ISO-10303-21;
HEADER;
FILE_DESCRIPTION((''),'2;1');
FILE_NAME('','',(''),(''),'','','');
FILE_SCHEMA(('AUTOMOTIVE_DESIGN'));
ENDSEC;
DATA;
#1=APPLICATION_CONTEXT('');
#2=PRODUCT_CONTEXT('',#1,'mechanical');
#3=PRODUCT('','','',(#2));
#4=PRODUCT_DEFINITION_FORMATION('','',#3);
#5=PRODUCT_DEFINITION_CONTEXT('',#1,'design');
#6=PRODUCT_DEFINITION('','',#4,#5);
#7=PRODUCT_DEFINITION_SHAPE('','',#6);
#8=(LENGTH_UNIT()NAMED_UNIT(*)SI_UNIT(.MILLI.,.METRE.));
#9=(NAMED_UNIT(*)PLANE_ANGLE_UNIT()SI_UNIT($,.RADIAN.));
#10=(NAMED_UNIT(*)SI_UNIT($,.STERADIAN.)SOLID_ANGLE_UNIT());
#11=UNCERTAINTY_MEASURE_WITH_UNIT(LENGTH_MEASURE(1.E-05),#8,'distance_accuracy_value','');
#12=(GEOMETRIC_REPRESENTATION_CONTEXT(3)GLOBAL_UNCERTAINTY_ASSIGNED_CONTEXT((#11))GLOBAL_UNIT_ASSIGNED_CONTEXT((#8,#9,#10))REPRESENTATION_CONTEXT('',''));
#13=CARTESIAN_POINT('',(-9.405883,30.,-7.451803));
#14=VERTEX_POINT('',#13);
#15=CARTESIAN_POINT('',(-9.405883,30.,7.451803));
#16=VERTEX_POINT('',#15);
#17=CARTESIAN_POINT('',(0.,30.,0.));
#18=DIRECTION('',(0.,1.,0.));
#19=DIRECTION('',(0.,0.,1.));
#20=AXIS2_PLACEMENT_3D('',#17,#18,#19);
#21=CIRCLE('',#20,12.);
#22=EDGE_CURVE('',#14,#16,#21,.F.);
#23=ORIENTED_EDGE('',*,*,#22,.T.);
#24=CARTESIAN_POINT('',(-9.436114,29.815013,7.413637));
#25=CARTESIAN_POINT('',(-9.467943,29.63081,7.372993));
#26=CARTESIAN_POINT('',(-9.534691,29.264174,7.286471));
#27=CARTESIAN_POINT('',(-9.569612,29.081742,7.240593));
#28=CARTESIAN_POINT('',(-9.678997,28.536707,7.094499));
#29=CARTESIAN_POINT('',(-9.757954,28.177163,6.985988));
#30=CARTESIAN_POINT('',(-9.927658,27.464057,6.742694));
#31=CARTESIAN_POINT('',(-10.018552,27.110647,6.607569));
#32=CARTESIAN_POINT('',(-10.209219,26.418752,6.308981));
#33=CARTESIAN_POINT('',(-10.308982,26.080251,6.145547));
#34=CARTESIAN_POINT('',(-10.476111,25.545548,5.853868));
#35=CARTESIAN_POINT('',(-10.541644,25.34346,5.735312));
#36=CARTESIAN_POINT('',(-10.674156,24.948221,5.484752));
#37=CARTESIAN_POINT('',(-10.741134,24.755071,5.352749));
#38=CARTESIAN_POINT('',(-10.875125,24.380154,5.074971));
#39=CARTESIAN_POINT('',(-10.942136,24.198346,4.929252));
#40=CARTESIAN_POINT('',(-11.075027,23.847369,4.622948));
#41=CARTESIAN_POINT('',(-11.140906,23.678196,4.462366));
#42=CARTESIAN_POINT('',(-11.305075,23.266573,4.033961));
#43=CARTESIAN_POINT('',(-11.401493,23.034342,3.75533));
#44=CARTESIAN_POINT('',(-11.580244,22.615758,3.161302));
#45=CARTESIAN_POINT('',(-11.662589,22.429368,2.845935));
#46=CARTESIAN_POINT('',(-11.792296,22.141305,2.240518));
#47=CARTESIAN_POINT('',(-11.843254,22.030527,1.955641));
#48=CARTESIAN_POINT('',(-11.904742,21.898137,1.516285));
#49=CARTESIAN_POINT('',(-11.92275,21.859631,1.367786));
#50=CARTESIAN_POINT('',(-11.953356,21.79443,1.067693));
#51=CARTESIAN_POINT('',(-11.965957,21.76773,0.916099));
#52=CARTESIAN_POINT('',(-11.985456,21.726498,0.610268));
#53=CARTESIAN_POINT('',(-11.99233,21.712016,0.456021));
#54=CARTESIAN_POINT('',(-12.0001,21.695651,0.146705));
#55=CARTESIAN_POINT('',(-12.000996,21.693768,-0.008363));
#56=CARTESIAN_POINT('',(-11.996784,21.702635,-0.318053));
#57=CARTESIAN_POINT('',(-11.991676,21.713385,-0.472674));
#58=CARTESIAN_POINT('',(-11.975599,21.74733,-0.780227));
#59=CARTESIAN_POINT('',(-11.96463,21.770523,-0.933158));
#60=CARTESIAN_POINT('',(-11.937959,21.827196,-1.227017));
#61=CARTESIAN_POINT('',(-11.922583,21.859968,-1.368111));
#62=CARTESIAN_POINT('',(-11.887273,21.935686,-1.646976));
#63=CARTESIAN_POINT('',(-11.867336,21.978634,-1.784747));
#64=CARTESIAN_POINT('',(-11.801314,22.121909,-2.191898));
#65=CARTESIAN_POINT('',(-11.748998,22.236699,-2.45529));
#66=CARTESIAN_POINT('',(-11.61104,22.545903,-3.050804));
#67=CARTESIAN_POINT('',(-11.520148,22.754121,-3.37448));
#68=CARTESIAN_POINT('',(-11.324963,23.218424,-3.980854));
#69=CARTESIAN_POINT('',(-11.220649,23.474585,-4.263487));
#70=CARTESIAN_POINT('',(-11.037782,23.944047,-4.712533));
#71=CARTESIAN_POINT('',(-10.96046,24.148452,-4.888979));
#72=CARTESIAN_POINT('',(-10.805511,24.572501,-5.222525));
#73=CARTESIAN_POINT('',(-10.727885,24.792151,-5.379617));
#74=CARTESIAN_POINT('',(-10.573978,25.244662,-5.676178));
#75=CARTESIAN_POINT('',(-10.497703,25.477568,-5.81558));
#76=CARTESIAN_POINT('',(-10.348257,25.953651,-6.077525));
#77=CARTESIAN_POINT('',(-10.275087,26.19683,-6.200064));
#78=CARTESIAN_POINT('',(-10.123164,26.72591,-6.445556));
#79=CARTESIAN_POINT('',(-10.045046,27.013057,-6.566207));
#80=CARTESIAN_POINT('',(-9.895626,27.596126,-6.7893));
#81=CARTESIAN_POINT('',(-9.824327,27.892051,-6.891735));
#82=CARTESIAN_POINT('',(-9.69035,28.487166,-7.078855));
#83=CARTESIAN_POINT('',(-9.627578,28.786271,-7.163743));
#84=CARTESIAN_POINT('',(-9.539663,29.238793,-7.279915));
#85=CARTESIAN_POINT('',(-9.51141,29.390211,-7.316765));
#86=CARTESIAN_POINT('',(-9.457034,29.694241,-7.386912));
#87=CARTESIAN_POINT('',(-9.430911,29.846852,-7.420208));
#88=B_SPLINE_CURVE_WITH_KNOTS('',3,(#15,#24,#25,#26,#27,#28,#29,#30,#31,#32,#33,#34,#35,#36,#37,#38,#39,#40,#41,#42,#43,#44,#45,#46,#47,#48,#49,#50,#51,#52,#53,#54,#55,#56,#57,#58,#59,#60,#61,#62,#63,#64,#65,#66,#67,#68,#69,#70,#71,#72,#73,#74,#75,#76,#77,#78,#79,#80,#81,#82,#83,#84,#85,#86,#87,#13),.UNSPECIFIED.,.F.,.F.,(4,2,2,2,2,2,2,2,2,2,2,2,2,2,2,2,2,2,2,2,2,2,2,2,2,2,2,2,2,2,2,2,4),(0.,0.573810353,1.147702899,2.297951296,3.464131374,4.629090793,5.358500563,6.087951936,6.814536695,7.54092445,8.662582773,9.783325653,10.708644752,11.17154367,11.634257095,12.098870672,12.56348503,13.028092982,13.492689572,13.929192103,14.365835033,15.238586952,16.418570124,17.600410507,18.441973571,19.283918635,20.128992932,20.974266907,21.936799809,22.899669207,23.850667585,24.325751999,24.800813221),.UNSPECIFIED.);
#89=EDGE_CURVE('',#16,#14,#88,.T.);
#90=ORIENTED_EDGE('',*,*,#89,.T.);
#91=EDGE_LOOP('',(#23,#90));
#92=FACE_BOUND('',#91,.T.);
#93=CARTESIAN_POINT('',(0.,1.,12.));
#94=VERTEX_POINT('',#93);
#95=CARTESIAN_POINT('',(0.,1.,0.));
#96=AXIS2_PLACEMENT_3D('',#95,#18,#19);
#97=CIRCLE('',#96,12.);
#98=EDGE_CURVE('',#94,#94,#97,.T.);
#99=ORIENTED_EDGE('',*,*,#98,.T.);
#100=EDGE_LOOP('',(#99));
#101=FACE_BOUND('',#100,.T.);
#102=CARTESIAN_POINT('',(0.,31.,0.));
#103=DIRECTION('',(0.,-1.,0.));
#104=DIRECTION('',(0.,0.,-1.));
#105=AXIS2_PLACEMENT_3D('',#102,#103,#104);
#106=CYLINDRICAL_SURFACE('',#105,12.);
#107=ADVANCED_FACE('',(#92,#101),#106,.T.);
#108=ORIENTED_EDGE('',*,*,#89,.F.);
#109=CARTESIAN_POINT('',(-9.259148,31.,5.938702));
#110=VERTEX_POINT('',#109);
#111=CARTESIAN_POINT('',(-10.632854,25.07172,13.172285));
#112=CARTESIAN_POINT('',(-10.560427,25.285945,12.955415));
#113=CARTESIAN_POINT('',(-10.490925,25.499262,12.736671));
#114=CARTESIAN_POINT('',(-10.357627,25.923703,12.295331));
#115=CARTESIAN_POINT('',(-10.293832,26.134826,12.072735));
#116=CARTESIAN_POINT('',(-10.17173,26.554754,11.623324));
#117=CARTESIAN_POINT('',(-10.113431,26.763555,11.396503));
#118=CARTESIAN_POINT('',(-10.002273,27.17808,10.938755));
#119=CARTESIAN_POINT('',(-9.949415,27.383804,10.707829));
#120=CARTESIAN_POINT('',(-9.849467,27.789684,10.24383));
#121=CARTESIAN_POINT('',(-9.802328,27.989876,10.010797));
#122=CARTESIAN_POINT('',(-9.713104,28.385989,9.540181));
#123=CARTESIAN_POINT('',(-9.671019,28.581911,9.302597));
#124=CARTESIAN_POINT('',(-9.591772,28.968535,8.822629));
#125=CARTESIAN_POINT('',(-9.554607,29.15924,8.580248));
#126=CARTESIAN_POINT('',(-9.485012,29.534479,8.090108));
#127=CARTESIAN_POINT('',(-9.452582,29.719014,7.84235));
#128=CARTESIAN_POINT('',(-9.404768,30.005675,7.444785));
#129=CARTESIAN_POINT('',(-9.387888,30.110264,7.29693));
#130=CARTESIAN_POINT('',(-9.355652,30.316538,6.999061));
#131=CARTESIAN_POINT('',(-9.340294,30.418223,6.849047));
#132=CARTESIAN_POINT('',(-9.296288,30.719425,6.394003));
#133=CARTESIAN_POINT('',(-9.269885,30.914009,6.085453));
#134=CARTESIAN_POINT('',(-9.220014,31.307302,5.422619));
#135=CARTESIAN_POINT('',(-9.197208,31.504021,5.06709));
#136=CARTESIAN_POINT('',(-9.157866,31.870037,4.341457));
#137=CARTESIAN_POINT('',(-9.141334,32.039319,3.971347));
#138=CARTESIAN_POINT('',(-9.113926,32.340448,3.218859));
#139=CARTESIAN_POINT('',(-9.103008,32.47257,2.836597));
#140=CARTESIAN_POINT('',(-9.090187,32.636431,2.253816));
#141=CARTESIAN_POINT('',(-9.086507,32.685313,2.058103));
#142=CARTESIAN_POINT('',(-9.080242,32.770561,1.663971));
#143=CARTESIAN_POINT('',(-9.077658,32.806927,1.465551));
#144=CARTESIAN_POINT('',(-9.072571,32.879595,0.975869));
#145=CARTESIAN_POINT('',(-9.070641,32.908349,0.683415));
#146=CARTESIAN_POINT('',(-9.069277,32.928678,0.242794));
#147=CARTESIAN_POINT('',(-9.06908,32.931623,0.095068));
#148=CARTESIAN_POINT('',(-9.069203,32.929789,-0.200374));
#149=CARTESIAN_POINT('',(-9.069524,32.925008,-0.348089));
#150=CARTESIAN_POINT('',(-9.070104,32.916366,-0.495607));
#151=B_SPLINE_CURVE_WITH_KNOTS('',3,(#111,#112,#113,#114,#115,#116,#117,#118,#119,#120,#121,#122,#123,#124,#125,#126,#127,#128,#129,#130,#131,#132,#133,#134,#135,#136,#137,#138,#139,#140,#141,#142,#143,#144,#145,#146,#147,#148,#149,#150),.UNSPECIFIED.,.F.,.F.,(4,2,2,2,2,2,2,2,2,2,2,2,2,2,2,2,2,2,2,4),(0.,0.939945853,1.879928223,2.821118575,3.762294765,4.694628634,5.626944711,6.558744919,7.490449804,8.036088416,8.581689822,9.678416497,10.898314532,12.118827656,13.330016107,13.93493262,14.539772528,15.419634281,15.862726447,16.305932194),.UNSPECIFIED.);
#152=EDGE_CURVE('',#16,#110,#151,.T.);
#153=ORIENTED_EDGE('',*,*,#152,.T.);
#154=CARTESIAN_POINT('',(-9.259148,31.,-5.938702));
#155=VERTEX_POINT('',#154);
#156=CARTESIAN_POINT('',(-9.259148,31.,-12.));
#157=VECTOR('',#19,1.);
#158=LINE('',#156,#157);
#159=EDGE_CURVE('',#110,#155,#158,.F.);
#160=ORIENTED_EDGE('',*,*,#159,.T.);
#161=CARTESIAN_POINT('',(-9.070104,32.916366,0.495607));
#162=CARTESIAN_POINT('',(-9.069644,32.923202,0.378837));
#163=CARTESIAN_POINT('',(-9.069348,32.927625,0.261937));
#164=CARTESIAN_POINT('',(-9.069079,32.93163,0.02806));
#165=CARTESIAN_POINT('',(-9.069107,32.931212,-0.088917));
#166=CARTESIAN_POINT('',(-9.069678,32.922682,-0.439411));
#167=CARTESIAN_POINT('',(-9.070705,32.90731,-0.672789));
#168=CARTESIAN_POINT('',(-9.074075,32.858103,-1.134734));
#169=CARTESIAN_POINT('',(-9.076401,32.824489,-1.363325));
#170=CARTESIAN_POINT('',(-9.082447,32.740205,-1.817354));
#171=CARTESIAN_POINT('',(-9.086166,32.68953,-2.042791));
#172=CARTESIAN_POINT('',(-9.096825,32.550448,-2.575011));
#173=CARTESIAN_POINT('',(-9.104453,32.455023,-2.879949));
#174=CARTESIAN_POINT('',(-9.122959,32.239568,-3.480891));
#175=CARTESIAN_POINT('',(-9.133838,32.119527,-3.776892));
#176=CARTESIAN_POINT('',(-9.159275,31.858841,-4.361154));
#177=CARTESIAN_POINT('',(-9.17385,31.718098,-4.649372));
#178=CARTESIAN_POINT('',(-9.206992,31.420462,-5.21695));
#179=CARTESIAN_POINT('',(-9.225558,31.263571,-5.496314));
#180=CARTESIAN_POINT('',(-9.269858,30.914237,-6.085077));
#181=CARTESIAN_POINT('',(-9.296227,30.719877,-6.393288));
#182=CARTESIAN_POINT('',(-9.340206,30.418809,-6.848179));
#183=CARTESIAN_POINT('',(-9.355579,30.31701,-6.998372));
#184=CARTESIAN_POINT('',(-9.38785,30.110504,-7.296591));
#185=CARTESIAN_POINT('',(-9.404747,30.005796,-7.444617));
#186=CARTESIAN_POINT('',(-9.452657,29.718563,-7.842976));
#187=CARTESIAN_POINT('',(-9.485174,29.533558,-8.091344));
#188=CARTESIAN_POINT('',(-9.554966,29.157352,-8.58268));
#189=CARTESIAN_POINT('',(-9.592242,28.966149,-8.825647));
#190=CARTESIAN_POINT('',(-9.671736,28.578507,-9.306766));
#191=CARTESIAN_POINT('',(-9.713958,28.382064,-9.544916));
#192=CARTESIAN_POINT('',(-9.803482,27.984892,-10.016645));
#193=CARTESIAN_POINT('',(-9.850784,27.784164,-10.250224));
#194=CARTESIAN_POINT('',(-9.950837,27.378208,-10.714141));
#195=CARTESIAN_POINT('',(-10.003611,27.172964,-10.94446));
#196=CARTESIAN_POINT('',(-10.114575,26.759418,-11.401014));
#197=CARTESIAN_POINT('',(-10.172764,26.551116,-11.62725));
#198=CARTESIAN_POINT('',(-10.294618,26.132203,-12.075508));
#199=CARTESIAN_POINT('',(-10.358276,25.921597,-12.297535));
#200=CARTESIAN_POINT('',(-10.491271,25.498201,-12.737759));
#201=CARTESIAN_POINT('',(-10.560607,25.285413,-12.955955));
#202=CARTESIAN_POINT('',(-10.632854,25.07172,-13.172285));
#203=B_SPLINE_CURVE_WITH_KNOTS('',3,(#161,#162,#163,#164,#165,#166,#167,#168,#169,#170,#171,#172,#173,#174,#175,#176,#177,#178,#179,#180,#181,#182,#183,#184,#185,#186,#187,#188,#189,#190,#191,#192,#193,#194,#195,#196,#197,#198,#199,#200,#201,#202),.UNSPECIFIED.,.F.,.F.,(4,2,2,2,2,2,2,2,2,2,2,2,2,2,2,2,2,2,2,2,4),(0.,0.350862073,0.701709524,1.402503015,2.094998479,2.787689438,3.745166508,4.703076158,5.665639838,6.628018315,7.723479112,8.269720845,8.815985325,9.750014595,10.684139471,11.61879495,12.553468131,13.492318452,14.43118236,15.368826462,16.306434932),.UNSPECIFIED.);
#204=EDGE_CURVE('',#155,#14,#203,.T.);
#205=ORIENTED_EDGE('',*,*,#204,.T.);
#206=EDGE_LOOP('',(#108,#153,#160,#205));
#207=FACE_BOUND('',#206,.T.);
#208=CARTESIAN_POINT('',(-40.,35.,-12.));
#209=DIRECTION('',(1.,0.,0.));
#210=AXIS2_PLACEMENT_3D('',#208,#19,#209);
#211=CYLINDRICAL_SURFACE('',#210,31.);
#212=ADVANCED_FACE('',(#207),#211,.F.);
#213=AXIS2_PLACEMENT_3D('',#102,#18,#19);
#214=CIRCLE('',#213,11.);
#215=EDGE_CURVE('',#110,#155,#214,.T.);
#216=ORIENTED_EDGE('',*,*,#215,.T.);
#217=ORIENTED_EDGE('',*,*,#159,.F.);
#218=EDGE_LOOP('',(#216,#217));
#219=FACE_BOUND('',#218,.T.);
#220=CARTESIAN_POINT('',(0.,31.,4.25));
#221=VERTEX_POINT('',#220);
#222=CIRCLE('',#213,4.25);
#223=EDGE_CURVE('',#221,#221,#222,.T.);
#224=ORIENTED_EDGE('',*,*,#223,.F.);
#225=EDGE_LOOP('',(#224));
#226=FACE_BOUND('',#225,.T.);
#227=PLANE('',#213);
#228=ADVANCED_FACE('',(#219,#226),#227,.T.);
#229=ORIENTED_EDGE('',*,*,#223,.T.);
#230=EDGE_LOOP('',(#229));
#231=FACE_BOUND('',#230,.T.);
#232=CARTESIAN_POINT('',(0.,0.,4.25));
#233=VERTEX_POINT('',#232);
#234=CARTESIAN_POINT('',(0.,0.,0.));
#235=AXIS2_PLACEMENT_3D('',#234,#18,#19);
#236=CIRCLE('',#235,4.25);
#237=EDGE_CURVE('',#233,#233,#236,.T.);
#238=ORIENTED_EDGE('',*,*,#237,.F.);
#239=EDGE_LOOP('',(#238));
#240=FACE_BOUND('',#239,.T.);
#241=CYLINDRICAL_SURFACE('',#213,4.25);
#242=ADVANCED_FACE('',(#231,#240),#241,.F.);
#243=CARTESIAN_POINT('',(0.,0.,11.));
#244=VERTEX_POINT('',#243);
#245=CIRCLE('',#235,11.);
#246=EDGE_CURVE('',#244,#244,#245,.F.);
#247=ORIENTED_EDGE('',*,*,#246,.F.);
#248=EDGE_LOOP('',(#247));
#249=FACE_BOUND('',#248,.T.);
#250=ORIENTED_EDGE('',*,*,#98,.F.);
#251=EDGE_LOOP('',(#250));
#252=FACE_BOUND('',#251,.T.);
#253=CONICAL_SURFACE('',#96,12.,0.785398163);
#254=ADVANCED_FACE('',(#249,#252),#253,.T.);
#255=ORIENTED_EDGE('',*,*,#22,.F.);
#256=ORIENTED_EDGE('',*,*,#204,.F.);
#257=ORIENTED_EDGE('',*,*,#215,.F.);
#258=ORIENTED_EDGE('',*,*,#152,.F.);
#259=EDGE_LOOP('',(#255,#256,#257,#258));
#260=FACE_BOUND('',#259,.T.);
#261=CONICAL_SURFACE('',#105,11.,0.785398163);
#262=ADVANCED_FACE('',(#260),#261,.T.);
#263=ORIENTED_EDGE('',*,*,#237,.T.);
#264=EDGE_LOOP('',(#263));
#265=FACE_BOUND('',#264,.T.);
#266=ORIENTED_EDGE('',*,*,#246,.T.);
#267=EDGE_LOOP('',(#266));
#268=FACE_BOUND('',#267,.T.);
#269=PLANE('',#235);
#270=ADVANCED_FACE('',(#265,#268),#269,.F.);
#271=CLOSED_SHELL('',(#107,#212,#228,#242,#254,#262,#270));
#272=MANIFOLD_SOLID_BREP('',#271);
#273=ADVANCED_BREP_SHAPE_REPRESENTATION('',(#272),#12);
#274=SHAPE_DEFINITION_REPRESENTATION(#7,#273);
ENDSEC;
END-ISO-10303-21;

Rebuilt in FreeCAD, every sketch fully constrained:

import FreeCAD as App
import Part
import Sketcher
from FreeCAD import Vector
Q = App.Units.Quantity


def edges_at(feature, points):
    """Names of the edges that pass closest to the given points."""
    edges = feature.Shape.Edges
    near = lambda p: min(range(len(edges)), key=lambda i: edges[i].distToShape(Part.Vertex(*p))[0])
    return sorted({f"Edge{near(p) + 1}" for p in points})

doc = App.newDocument("Part")
body = doc.addObject("PartDesign::Body", "Body")

# Sketch on XZ plane
sketch1 = doc.addObject("Sketcher::SketchObject", "Sketch")
body.addObject(sketch1)
sketch1.AttachmentSupport = (doc.XZ_Plane, [""])
sketch1.MapMode = "FlatFace"
sketch1.addGeometry(Part.Circle(Vector(0, 0, 0), Vector(0, 0, 1), 12), False)
sketch1.addConstraint([
    Sketcher.Constraint("Coincident", 0, 3, -1, 1),
    Sketcher.Constraint("Diameter", 0, Q("24 mm")),
])
pad1 = doc.addObject("PartDesign::Pad", "Pad")
body.addObject(pad1)
pad1.Profile = sketch1
pad1.Length = 31
pad1.Reversed = True

# Sketch on XZ plane
sketch2 = doc.addObject("Sketcher::SketchObject", "Sketch001")
body.addObject(sketch2)
sketch2.AttachmentSupport = (doc.XZ_Plane, [""])
sketch2.MapMode = "FlatFace"
sketch2.AttachmentOffset = App.Placement(Vector(0, 0, -31), App.Rotation())
sketch2.addGeometry(Part.Circle(Vector(0, 0, 0), Vector(0, 0, 1), 4.25), False)
sketch2.addConstraint([
    Sketcher.Constraint("Coincident", 0, 3, -1, 1),
    Sketcher.Constraint("Diameter", 0, Q("8.5 mm")),
])
doc.recompute()
hole = doc.addObject("PartDesign::Hole", "Hole")
body.addObject(hole)
hole.Profile = sketch2
hole.ThreadType = "None"
hole.Diameter = 8.5
hole.DepthType = "ThroughAll"
hole.Reversed = True
doc.recompute()

chamfer = doc.addObject("PartDesign::Chamfer", "Chamfer")
body.addObject(chamfer)
chamfer.Base = (hole, edges_at(hole, [(0, 0, -12), (0, 31, -12)]))
chamfer.Size = 1

# Sketch on XY plane
sketch3 = doc.addObject("Sketcher::SketchObject", "Sketch002")
body.addObject(sketch3)
sketch3.AttachmentSupport = (doc.XY_Plane, [""])
sketch3.MapMode = "FlatFace"
sketch3.addGeometry(Part.Circle(Vector(-40, 35, 0), Vector(0, 0, 1), 31), False)
sketch3.addConstraint([
    Sketcher.Constraint("Diameter", 0, Q("62 mm")),
    Sketcher.Constraint("DistanceX", 0, 3, -1, 1, Q("40 mm")),
    Sketcher.Constraint("DistanceY", -1, 1, 0, 3, Q("35 mm")),
])
pocket1 = doc.addObject("PartDesign::Pocket", "Pocket")
body.addObject(pocket1)
pocket1.Profile = sketch3
pocket1.Type = "ThroughAll"
pocket1.Midplane = True

doc.recompute()
